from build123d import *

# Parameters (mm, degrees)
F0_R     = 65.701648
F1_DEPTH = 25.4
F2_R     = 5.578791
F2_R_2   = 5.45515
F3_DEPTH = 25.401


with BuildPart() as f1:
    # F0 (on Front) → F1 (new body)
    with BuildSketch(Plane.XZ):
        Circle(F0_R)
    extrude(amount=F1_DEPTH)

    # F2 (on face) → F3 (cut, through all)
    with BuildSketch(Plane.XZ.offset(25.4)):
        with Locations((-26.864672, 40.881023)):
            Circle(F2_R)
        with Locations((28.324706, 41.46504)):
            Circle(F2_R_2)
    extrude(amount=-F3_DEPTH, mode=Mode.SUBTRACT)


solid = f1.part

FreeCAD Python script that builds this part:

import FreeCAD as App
import Part
import Sketcher
from FreeCAD import Vector

doc = App.newDocument("Part")
params = doc.addObject("Spreadsheet::Sheet", "Params")
for row, (alias, value) in enumerate([
    ("pad1_length", "1 in"),
], start=1):
    params.set(f"A{row}", alias)
    params.set(f"B{row}", "=" + value)
    params.setAlias(f"B{row}", alias)

body = doc.addObject("PartDesign::Body", "Body")

# Sketch on XZ plane
sketch1 = doc.addObject("Sketcher::SketchObject", "Sketch")
body.addObject(sketch1)
sketch1.AttachmentSupport = (doc.XZ_Plane, [""])
sketch1.MapMode = "FlatFace"
sketch1.addGeometry(Part.Circle(Vector(0, 0, 0), Vector(0, 0, 1), 66), False)
sketch1.addConstraint([
    Sketcher.Constraint("Coincident", 0, 3, -1, 1),
    Sketcher.Constraint("Diameter", 0, 131.403296),
])
pad1 = doc.addObject("PartDesign::Pad", "Pad")
body.addObject(pad1)
pad1.Profile = sketch1
pad1.setExpression("Length", "Params.pad1_length")

# Sketch on XZ plane
sketch2 = doc.addObject("Sketcher::SketchObject", "Sketch001")
body.addObject(sketch2)
sketch2.AttachmentSupport = (doc.XZ_Plane, [""])
sketch2.MapMode = "FlatFace"
sketch2.AttachmentOffset = App.Placement(Vector(0, 0, 1 * 25.4), App.Rotation())
sketch2.addGeometry([
    Part.Circle(Vector(-27, 41, 0), Vector(0, 0, 1), 6),
    Part.Circle(Vector(28, 41, 0), Vector(0, 0, 1), 5),
], False)
sketch2.addConstraint([
    Sketcher.Constraint("Diameter", 1, 10.9103),
    Sketcher.Constraint("Diameter", 0, 11.157582),
    Sketcher.Constraint("DistanceX", 0, 3, -1, 1, 26.864672),
    Sketcher.Constraint("DistanceY", -1, 1, 1, 3, 41.46504),
    Sketcher.Constraint("DistanceY", -1, 1, 0, 3, 40.881023),
    Sketcher.Constraint("DistanceX", -1, 1, 1, 3, 28.324706),
])
pocket1 = doc.addObject("PartDesign::Pocket", "Pocket")
body.addObject(pocket1)
pocket1.Profile = sketch2
pocket1.Type = "ThroughAll"

doc.recompute()
